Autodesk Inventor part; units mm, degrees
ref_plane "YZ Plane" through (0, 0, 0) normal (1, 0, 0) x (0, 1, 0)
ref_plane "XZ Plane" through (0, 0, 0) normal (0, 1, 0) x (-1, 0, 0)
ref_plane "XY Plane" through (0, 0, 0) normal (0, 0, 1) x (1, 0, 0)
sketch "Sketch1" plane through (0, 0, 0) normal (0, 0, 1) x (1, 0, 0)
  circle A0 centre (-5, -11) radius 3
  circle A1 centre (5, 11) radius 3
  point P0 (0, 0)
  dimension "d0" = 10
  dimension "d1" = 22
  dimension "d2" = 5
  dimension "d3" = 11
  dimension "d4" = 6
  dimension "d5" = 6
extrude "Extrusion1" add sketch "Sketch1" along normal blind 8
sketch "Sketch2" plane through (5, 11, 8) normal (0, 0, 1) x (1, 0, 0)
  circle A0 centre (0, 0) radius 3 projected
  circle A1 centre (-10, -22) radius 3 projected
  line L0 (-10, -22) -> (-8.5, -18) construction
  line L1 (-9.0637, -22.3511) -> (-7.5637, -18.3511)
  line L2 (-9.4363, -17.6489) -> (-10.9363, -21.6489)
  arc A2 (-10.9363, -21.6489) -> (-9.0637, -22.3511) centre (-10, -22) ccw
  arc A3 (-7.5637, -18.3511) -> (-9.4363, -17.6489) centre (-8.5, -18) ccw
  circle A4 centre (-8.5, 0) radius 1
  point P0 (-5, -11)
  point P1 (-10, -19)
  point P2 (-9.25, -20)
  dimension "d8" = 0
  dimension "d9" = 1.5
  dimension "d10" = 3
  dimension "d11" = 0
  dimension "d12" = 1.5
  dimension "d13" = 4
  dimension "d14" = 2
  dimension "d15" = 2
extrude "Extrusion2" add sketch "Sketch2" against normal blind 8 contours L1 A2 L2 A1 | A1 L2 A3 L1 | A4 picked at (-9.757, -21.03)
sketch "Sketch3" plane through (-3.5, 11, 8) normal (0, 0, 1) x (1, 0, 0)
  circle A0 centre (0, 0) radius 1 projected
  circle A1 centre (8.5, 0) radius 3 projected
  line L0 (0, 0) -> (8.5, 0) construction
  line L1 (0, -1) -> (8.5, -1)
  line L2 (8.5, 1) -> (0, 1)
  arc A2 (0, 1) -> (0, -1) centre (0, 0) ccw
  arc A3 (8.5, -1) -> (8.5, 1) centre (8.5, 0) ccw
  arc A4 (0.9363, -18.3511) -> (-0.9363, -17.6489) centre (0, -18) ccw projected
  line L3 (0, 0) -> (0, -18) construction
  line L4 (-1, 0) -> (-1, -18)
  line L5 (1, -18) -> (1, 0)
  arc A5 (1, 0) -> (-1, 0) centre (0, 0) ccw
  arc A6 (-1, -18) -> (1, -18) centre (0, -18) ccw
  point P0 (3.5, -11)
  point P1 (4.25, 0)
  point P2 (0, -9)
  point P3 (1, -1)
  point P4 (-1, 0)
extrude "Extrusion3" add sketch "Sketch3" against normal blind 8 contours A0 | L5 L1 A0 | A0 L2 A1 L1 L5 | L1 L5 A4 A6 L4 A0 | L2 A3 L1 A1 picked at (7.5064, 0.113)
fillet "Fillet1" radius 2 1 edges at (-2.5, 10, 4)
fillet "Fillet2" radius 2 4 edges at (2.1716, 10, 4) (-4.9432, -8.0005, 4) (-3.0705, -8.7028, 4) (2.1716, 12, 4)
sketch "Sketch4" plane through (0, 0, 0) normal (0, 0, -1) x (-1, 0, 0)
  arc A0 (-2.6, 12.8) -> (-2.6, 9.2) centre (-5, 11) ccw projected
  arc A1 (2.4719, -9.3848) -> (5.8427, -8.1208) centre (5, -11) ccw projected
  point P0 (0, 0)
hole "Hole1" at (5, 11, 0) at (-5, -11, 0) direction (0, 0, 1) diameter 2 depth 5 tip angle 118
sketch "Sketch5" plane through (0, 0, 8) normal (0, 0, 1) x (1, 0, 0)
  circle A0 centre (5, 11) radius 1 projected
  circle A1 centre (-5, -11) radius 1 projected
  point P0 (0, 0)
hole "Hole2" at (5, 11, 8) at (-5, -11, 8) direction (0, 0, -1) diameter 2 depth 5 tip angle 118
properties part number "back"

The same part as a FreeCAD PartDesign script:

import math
import FreeCAD as App
import Part
import Sketcher


def edges_at(feature, points):
    """Names of the edges that pass closest to the given points."""
    edges = feature.Shape.Edges
    near = lambda p: min(range(len(edges)), key=lambda i: edges[i].distToShape(Part.Vertex(*p))[0])
    return sorted({f"Edge{near(p) + 1}" for p in points})

doc = App.newDocument("Part")
body = doc.addObject("PartDesign::Body", "Body")
body.AllowCompound = True

# Sketch on XY plane
sketch1 = doc.addObject("Sketcher::SketchObject", "Sketch")
body.addObject(sketch1)
sketch1.AttachmentSupport = (doc.XY_Plane, [""])
sketch1.MapMode = "FlatFace"
sketch1.addGeometry(Part.Circle(App.Vector(-5, -11, 0), App.Vector(0, 0, 1), 3), False)
sketch1.addGeometry(Part.Circle(App.Vector(5, 11, 0), App.Vector(0, 0, 1), 3), False)
sketch1.addConstraint(Sketcher.Constraint("Equal", 0, 1))
sketch1.addConstraint(Sketcher.Constraint("Symmetric", 0, 3, 1, 3, -1, 1))
sketch1.addConstraint(Sketcher.Constraint("Diameter", 0, 6.0))
sketch1.addConstraint(Sketcher.Constraint("DistanceX", 0, 3, -1, 1, 5.0))
sketch1.addConstraint(Sketcher.Constraint("DistanceY", 0, 3, -1, 1, 11.0))
pad1 = doc.addObject("PartDesign::Pad", "Pad")
body.addObject(pad1)
pad1.Profile = sketch1
pad1.Length = 8

# Sketch on XY plane
sketch2 = doc.addObject("Sketcher::SketchObject", "Sketch001")
body.addObject(sketch2)
sketch2.AttachmentSupport = (doc.XY_Plane, [""])
sketch2.MapMode = "FlatFace"
sketch2.AttachmentOffset = App.Placement(App.Vector(0, 0, 8), App.Rotation())
sketch2.addGeometry(Part.LineSegment(App.Vector(-4.1, -11.4, 0), App.Vector(-2.6, -7.4, 0)), False)
sketch2.addGeometry(Part.ArcOfCircle(Part.Circle(App.Vector(-3.5, -7, 0), App.Vector(0, 0, 1), 1), math.radians(-21), math.radians(159)), False)
sketch2.addGeometry(Part.LineSegment(App.Vector(-4.4, -6.6, 0), App.Vector(-5.9, -10.6, 0)), False)
sketch2.addGeometry(Part.ArcOfCircle(Part.Circle(App.Vector(-5, -11, 0), App.Vector(0, 0, 1), 1), math.radians(159), math.radians(339)), False)
sketch2.addGeometry(Part.Circle(App.Vector(-3.5, 11, 0), App.Vector(0, 0, 1), 1), False)
sketch2.addConstraint(Sketcher.Constraint("Tangent", 0, 2, 1, 1))
sketch2.addConstraint(Sketcher.Constraint("Tangent", 1, 2, 2, 1))
sketch2.addConstraint(Sketcher.Constraint("Tangent", 2, 2, 3, 1))
sketch2.addConstraint(Sketcher.Constraint("Tangent", 3, 2, 0, 1))
sketch2.addConstraint(Sketcher.Constraint("Equal", 1, 3))
sketch2.addConstraint(Sketcher.Constraint("Equal", 3, 4))
sketch2.addConstraint(Sketcher.Constraint("Vertical", 1, 3, 4, 3))
sketch2.addConstraint(Sketcher.Constraint("Diameter", 4, 2.0))
sketch2.addConstraint(Sketcher.Constraint("DistanceY", 3, 3, 1, 3, 4.0))
sketch2.addConstraint(Sketcher.Constraint("DistanceX", 3, 3, 1, 3, 1.5))
sketch2.addConstraint(Sketcher.Constraint("DistanceY", 1, 3, -1, 1, 7.0))
sketch2.addConstraint(Sketcher.Constraint("DistanceX", 3, 3, -1, 1, 5.0))
sketch2.addConstraint(Sketcher.Constraint("DistanceY", -1, 1, 4, 3, 11.0))
pad2 = doc.addObject("PartDesign::Pad", "Pad001")
body.addObject(pad2)
pad2.Profile = sketch2
pad2.Length = 8
pad2.Reversed = True

# Sketch on XY plane
sketch3 = doc.addObject("Sketcher::SketchObject", "Sketch002")
body.addObject(sketch3)
sketch3.AttachmentSupport = (doc.XY_Plane, [""])
sketch3.MapMode = "FlatFace"
sketch3.AttachmentOffset = App.Placement(App.Vector(0, 0, 8), App.Rotation())
sketch3.addGeometry(Part.ArcOfCircle(Part.Circle(App.Vector(-3.5, 11, 0), App.Vector(0, 0, 1), 1), math.radians(90), math.radians(180)), False)
sketch3.addGeometry(Part.LineSegment(App.Vector(-4.5, 11, 0), App.Vector(-4.5, -7, 0)), False)
sketch3.addGeometry(Part.ArcOfCircle(Part.Circle(App.Vector(-3.5, -7, 0), App.Vector(0, 0, 1), 1), math.radians(180), math.radians(360)), False)
sketch3.addGeometry(Part.LineSegment(App.Vector(-2.5, -7, 0), App.Vector(-2.5, 10, 0)), False)
sketch3.addGeometry(Part.LineSegment(App.Vector(-2.5, 10, 0), App.Vector(5, 10, 0)), False)
sketch3.addGeometry(Part.ArcOfCircle(Part.Circle(App.Vector(5, 11, 0), App.Vector(0, 0, 1), 1), math.radians(-90), math.radians(90)), False)
sketch3.addGeometry(Part.LineSegment(App.Vector(5, 12, 0), App.Vector(-3.5, 12, 0)), False)
sketch3.addConstraint(Sketcher.Constraint("Tangent", 0, 2, 1, 1))
sketch3.addConstraint(Sketcher.Constraint("Tangent", 1, 2, 2, 1))
sketch3.addConstraint(Sketcher.Constraint("Tangent", 2, 2, 3, 1))
sketch3.addConstraint(Sketcher.Constraint("Coincident", 3, 2, 4, 1))
sketch3.addConstraint(Sketcher.Constraint("Tangent", 4, 2, 5, 1))
sketch3.addConstraint(Sketcher.Constraint("Tangent", 5, 2, 6, 1))
sketch3.addConstraint(Sketcher.Constraint("Tangent", 6, 2, 0, 1))
sketch3.addConstraint(Sketcher.Constraint("Vertical", 1))
sketch3.addConstraint(Sketcher.Constraint("Vertical", 3))
sketch3.addConstraint(Sketcher.Constraint("Horizontal", 4))
sketch3.addConstraint(Sketcher.Constraint("Horizontal", 6))
sketch3.addConstraint(Sketcher.Constraint("Equal", 0, 2))
sketch3.addConstraint(Sketcher.Constraint("Equal", 2, 5))
sketch3.addConstraint(Sketcher.Constraint("Radius", 0, 1.0))
sketch3.addConstraint(Sketcher.Constraint("DistanceY", 1, 2, 1, 1, 18.0))
sketch3.addConstraint(Sketcher.Constraint("DistanceX", 4, 1, 4, 2, 7.5))
sketch3.addConstraint(Sketcher.Constraint("DistanceY", -1, 1, 0, 3, 11.0))
sketch3.addConstraint(Sketcher.Constraint("DistanceX", -1, 1, 5, 3, 5.0))
pad3 = doc.addObject("PartDesign::Pad", "Pad002")
body.addObject(pad3)
pad3.Profile = sketch3
pad3.Length = 8
pad3.Reversed = True
doc.recompute()

fillet = doc.addObject("PartDesign::Fillet", "Fillet")
body.addObject(fillet)
fillet.Base = (pad3, edges_at(pad3, [(-2.5, 10, 4)]))
fillet.Radius = 2
doc.recompute()

fillet2 = doc.addObject("PartDesign::Fillet", "Fillet001")
body.addObject(fillet2)
fillet2.Base = (fillet, edges_at(fillet, [
    (2.172, 10, 4),
    (-4.943, -8.001, 4),
    (-3.071, -8.703, 4),
    (2.172, 12, 4),
]))
fillet2.Radius = 2

# Sketch on XY plane
sketch4 = doc.addObject("Sketcher::SketchObject", "Sketch003")
body.addObject(sketch4)
sketch4.AttachmentSupport = (doc.XY_Plane, [""])
sketch4.MapMode = "FlatFace"
sketch4.addGeometry(Part.Circle(App.Vector(5, 11, 0), App.Vector(0, 0, 1), 1), False)
sketch4.addGeometry(Part.Circle(App.Vector(-5, -11, 0), App.Vector(0, 0, 1), 1), False)
sketch4.addConstraint(Sketcher.Constraint("Equal", 0, 1))
sketch4.addConstraint(Sketcher.Constraint("Symmetric", 0, 3, 1, 3, -1, 1))
sketch4.addConstraint(Sketcher.Constraint("Diameter", 0, 2.0))
sketch4.addConstraint(Sketcher.Constraint("DistanceX", -1, 1, 0, 3, 5.0))
sketch4.addConstraint(Sketcher.Constraint("DistanceY", -1, 1, 0, 3, 11.0))
doc.recompute()
hole = doc.addObject("PartDesign::Hole", "Hole")
body.addObject(hole)
hole.Profile = sketch4
hole.ThreadType = "None"
hole.Diameter = 2
hole.DepthType = "Dimension"
hole.Depth = 5
hole.DrillPoint = "Angled"
hole.DrillPointAngle = 118
hole.Reversed = True

# Sketch on XY plane
sketch5 = doc.addObject("Sketcher::SketchObject", "Sketch004")
body.addObject(sketch5)
sketch5.AttachmentSupport = (doc.XY_Plane, [""])
sketch5.MapMode = "FlatFace"
sketch5.AttachmentOffset = App.Placement(App.Vector(0, 0, 8), App.Rotation())
sketch5.addGeometry(Part.Circle(App.Vector(5, 11, 0), App.Vector(0, 0, 1), 1), False)
sketch5.addGeometry(Part.Circle(App.Vector(-5, -11, 0), App.Vector(0, 0, 1), 1), False)
sketch5.addConstraint(Sketcher.Constraint("Equal", 0, 1))
sketch5.addConstraint(Sketcher.Constraint("Symmetric", 0, 3, 1, 3, -1, 1))
sketch5.addConstraint(Sketcher.Constraint("Diameter", 0, 2.0))
sketch5.addConstraint(Sketcher.Constraint("DistanceX", -1, 1, 0, 3, 5.0))
sketch5.addConstraint(Sketcher.Constraint("DistanceY", -1, 1, 0, 3, 11.0))
doc.recompute()
hole2 = doc.addObject("PartDesign::Hole", "Hole001")
body.addObject(hole2)
hole2.Profile = sketch5
hole2.ThreadType = "None"
hole2.Diameter = 2
hole2.DepthType = "Dimension"
hole2.Depth = 5
hole2.DrillPoint = "Angled"
hole2.DrillPointAngle = 118

doc.recompute()
